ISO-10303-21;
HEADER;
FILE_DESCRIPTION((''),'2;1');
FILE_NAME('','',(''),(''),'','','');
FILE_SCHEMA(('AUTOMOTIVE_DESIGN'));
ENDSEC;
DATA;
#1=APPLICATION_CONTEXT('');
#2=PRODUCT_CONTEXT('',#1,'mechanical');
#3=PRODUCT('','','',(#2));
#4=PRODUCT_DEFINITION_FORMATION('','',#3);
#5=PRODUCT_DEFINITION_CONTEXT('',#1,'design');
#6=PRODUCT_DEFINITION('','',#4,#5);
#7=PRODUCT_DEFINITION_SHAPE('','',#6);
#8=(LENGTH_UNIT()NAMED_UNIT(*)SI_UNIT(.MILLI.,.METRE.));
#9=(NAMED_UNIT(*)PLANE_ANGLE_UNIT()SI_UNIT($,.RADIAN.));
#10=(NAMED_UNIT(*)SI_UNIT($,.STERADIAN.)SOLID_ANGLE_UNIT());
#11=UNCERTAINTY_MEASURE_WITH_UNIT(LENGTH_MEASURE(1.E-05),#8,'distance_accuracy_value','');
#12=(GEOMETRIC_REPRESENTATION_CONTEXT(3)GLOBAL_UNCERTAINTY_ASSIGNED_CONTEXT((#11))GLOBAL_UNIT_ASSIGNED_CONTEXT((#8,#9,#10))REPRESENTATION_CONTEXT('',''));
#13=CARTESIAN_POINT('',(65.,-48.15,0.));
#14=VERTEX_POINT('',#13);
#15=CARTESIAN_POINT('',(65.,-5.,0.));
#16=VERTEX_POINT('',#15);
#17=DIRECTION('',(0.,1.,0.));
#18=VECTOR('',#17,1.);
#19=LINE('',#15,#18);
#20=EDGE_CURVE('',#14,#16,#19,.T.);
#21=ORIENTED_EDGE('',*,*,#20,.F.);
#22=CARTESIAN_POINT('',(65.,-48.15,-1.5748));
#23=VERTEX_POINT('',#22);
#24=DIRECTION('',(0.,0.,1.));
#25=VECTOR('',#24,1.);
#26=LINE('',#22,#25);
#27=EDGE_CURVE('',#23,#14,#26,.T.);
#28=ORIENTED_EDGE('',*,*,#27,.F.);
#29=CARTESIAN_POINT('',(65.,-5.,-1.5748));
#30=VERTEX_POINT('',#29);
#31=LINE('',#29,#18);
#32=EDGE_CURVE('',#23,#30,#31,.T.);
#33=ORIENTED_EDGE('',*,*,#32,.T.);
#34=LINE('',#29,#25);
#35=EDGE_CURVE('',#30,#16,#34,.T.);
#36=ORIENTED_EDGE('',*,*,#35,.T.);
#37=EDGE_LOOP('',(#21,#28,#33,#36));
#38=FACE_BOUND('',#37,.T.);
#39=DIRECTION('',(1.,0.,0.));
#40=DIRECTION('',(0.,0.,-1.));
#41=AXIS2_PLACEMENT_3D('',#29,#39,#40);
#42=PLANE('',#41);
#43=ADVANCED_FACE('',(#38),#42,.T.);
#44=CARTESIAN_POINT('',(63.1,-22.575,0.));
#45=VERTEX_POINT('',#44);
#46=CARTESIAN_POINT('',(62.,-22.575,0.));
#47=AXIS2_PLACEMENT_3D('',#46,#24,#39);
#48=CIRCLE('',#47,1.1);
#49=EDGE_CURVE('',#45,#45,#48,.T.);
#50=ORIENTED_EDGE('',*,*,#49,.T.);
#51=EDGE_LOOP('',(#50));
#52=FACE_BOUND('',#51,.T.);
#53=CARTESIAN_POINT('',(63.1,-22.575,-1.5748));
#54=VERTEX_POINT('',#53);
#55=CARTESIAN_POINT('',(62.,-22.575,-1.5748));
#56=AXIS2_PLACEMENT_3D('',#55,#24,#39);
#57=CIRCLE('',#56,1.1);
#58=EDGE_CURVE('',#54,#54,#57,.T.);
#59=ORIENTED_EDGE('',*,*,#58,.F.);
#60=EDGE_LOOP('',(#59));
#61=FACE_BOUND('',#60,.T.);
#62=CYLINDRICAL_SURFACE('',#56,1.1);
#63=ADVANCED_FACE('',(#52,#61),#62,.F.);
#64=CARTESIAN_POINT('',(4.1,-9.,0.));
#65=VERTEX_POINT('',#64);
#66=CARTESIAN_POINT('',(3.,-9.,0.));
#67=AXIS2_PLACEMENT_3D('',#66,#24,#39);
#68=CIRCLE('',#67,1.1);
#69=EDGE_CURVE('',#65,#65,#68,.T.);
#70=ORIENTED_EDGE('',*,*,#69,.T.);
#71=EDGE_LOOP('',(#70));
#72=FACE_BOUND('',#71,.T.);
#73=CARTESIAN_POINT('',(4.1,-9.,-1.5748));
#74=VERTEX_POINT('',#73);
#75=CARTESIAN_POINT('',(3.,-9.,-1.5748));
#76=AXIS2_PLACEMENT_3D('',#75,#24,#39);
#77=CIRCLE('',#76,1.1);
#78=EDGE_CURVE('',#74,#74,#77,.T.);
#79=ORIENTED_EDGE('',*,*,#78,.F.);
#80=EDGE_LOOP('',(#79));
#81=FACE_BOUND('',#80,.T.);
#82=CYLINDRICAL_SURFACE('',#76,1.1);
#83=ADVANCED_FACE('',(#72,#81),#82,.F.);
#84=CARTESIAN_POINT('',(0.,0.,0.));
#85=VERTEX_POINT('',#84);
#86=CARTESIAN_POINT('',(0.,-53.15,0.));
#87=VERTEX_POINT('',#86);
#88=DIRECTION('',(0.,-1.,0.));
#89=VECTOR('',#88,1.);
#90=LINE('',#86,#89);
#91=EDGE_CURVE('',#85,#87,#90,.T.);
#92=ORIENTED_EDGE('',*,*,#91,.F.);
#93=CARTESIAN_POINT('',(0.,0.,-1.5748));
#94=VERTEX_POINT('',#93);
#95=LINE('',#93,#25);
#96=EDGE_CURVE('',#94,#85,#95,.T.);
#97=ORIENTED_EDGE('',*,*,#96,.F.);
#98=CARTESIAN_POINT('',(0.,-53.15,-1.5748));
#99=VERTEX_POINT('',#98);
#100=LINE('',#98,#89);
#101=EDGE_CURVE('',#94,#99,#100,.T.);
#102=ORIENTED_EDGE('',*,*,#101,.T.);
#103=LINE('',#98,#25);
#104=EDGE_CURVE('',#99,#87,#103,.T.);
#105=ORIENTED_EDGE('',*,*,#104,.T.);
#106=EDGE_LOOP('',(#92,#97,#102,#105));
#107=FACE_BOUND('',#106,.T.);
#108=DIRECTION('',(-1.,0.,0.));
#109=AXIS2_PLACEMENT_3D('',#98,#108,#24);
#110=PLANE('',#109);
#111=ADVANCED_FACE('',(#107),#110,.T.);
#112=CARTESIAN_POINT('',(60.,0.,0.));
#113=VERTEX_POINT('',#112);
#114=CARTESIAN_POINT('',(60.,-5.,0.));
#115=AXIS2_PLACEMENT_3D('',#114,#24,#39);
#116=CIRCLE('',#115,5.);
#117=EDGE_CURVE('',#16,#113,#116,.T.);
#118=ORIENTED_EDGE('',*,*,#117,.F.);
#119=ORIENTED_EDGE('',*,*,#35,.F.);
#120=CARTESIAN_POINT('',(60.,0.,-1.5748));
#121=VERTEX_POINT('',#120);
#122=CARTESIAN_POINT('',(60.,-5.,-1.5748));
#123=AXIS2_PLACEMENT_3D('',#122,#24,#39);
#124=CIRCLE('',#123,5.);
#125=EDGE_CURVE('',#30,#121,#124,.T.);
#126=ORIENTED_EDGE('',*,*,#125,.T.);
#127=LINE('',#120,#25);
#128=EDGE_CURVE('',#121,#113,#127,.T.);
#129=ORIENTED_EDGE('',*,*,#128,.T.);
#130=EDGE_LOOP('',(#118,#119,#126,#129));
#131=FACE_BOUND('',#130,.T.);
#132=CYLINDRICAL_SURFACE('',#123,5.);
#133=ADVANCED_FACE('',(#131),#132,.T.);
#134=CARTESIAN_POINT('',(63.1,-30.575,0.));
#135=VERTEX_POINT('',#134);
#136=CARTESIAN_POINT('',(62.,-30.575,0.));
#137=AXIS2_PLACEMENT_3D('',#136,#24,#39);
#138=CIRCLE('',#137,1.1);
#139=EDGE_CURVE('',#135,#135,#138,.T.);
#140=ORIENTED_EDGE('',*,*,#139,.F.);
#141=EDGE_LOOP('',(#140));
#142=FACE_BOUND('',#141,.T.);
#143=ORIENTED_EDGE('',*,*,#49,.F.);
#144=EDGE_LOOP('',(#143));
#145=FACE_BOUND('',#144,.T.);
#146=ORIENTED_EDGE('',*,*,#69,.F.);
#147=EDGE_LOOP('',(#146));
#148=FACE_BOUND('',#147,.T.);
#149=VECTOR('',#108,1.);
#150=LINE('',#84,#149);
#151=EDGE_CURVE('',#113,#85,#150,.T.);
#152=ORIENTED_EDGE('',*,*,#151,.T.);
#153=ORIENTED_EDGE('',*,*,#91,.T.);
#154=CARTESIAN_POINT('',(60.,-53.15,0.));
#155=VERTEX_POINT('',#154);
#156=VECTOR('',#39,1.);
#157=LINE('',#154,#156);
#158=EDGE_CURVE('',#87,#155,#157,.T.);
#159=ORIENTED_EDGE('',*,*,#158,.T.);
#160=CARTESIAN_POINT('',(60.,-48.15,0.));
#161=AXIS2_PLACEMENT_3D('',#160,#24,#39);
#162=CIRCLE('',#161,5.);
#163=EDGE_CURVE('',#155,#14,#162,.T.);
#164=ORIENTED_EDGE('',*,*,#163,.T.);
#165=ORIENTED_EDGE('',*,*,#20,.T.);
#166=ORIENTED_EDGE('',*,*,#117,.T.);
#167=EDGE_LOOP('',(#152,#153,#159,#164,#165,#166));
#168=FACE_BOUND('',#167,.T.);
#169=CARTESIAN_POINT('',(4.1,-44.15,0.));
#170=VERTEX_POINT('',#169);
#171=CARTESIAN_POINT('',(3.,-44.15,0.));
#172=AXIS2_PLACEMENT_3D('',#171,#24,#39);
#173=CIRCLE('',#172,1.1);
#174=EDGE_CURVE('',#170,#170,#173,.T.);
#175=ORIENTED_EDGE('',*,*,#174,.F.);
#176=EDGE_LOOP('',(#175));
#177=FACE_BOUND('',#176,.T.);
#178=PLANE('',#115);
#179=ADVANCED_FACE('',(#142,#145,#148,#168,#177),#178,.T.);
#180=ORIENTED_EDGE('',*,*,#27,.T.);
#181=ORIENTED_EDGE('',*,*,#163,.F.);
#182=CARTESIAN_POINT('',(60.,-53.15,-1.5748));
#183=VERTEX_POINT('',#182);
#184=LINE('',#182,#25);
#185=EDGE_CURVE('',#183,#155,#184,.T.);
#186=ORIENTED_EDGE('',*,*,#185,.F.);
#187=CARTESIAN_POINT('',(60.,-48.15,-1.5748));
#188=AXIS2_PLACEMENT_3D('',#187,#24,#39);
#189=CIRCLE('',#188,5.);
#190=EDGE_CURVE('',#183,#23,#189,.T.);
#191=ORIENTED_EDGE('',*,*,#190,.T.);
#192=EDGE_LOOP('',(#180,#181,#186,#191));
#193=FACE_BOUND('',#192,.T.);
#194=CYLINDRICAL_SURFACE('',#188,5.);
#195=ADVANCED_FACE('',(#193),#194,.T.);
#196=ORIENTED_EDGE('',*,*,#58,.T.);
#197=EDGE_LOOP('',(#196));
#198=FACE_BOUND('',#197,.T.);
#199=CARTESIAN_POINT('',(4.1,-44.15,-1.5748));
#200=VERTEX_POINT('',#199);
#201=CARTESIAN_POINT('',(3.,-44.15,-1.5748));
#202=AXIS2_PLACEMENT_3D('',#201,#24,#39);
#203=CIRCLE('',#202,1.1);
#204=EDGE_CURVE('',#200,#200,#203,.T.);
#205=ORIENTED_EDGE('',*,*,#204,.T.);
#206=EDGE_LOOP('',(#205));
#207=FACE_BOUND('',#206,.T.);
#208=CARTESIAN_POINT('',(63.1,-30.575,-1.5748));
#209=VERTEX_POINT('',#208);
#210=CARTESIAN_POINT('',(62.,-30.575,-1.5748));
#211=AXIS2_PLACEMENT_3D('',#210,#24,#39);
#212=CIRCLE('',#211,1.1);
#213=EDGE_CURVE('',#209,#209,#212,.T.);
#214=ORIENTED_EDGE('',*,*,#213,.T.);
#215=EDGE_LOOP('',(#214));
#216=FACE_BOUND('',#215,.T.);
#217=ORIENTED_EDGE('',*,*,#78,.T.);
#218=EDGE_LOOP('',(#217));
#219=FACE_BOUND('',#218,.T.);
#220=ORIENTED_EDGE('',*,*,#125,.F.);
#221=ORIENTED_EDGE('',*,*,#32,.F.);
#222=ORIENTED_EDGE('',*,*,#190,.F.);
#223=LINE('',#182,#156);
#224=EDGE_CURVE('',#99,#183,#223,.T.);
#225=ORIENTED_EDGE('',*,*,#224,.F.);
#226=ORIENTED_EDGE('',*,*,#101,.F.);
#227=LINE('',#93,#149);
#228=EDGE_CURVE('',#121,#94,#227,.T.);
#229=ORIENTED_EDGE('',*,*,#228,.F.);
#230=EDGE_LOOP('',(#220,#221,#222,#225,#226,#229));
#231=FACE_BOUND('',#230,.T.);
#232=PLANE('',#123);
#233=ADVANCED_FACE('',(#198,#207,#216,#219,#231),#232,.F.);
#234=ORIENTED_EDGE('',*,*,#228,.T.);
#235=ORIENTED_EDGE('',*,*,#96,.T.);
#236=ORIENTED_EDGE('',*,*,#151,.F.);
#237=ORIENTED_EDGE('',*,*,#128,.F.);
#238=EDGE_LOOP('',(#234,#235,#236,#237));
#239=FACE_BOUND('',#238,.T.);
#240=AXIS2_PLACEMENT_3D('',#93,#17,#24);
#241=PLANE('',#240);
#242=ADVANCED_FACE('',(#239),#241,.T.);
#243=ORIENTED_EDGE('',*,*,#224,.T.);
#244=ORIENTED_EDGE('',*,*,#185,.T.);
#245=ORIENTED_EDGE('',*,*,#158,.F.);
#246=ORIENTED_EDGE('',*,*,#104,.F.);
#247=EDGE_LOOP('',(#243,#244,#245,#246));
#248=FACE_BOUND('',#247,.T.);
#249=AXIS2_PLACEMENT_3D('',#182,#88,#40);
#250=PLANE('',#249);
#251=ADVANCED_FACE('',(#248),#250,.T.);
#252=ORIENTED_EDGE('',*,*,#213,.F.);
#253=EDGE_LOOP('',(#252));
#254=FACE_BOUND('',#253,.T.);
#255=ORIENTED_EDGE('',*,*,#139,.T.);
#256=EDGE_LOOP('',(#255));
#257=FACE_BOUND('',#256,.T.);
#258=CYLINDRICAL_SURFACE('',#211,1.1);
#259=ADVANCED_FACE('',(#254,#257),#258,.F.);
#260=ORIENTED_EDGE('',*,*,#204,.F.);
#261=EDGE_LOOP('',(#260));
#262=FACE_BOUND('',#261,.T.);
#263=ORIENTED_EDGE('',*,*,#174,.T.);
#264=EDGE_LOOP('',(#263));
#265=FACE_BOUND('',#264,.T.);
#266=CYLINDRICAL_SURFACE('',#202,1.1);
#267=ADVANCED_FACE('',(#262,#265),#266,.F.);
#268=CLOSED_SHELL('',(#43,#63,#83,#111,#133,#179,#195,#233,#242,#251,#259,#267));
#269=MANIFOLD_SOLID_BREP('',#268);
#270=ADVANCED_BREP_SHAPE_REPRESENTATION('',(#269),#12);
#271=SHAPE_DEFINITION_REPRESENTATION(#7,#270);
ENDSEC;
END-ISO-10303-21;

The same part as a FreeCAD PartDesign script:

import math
import FreeCAD as App
import Part
import Sketcher

doc = App.newDocument("Part")
body = doc.addObject("PartDesign::Body", "Body")

sketch1 = doc.addObject("Sketcher::SketchObject", "Sketch")
body.addObject(sketch1)
sketch1.AttachmentSupport = (doc.XY_Plane, [""])
sketch1.MapMode = "FlatFace"
sketch1.addGeometry(Part.LineSegment(App.Vector(0, 0, 0), App.Vector(0, -53.1, 0)), False)
sketch1.addGeometry(Part.LineSegment(App.Vector(0, -53.1, 0), App.Vector(60, -53.1, 0)), False)
sketch1.addGeometry(Part.ArcOfCircle(Part.Circle(App.Vector(60, -48.1, 0), App.Vector(0, 0, 1), 5), math.radians(-90), math.radians(0)), False)
sketch1.addGeometry(Part.LineSegment(App.Vector(65, -48.1, 0), App.Vector(65, -5, 0)), False)
sketch1.addGeometry(Part.ArcOfCircle(Part.Circle(App.Vector(60, -5, 0), App.Vector(0, 0, 1), 5), math.radians(0), math.radians(90)), False)
sketch1.addGeometry(Part.LineSegment(App.Vector(60, 0, 0), App.Vector(0, 0, 0)), False)
sketch1.addGeometry(Part.Circle(App.Vector(62, -30.6, 0), App.Vector(0, 0, 1), 1.1), False)
sketch1.addGeometry(Part.Circle(App.Vector(3, -44.1, 0), App.Vector(0, 0, 1), 1.1), False)
sketch1.addGeometry(Part.Circle(App.Vector(62, -22.6, 0), App.Vector(0, 0, 1), 1.1), False)
sketch1.addGeometry(Part.Circle(App.Vector(3, -9, 0), App.Vector(0, 0, 1), 1.1), False)
sketch1.addConstraint(Sketcher.Constraint("Coincident", 0, 2, 1, 1))
sketch1.addConstraint(Sketcher.Constraint("Tangent", 1, 2, 2, 1))
sketch1.addConstraint(Sketcher.Constraint("Tangent", 2, 2, 3, 1))
sketch1.addConstraint(Sketcher.Constraint("Tangent", 3, 2, 4, 1))
sketch1.addConstraint(Sketcher.Constraint("Tangent", 4, 2, 5, 1))
sketch1.addConstraint(Sketcher.Constraint("Coincident", 5, 2, 0, 1))
sketch1.addConstraint(Sketcher.Constraint("Vertical", 0))
sketch1.addConstraint(Sketcher.Constraint("Horizontal", 1))
sketch1.addConstraint(Sketcher.Constraint("Vertical", 3))
sketch1.addConstraint(Sketcher.Constraint("Horizontal", 5))
sketch1.addConstraint(Sketcher.Constraint("Coincident", 5, 2, -1, 1))
sketch1.addConstraint(Sketcher.Constraint("Equal", 2, 4))
sketch1.addConstraint(Sketcher.Constraint("Equal", 6, 7))
sketch1.addConstraint(Sketcher.Constraint("Equal", 7, 8))
sketch1.addConstraint(Sketcher.Constraint("Equal", 8, 9))
sketch1.addConstraint(Sketcher.Constraint("Vertical", 6, 3, 8, 3))
sketch1.addConstraint(Sketcher.Constraint("Vertical", 7, 3, 9, 3))
sketch1.addConstraint(Sketcher.Constraint("Radius", 2, 5.0))
sketch1.addConstraint(Sketcher.Constraint("Diameter", 6, 2.2))
sketch1.addConstraint(Sketcher.Constraint("DistanceX", 1, 1, 1, 2, 60.0))
sketch1.addConstraint(Sketcher.Constraint("DistanceX", -1, 1, 6, 3, 62.0))
sketch1.addConstraint(Sketcher.Constraint("DistanceX", -1, 1, 7, 3, 3.0))
sketch1.addConstraint(Sketcher.Constraint("DistanceY", 9, 3, -1, 1, 9.0))
sketch1.addConstraint(Sketcher.Constraint("DistanceY", 2, 3, 7, 3, 4.0))
sketch1.addConstraint(Sketcher.Constraint("DistanceY", 6, 3, 8, 3, 8.0))
sketch1.addConstraint(Sketcher.Constraint("DistanceY", 0, 2, 0, 1, 53.15))
sketch1.addConstraint(Sketcher.Constraint("DistanceY", 6, 3, -1, 1, 30.575))
pad1 = doc.addObject("PartDesign::Pad", "Pad")
body.addObject(pad1)
pad1.Profile = sketch1
pad1.Length = 1.5748
pad1.Reversed = True

doc.recompute()
